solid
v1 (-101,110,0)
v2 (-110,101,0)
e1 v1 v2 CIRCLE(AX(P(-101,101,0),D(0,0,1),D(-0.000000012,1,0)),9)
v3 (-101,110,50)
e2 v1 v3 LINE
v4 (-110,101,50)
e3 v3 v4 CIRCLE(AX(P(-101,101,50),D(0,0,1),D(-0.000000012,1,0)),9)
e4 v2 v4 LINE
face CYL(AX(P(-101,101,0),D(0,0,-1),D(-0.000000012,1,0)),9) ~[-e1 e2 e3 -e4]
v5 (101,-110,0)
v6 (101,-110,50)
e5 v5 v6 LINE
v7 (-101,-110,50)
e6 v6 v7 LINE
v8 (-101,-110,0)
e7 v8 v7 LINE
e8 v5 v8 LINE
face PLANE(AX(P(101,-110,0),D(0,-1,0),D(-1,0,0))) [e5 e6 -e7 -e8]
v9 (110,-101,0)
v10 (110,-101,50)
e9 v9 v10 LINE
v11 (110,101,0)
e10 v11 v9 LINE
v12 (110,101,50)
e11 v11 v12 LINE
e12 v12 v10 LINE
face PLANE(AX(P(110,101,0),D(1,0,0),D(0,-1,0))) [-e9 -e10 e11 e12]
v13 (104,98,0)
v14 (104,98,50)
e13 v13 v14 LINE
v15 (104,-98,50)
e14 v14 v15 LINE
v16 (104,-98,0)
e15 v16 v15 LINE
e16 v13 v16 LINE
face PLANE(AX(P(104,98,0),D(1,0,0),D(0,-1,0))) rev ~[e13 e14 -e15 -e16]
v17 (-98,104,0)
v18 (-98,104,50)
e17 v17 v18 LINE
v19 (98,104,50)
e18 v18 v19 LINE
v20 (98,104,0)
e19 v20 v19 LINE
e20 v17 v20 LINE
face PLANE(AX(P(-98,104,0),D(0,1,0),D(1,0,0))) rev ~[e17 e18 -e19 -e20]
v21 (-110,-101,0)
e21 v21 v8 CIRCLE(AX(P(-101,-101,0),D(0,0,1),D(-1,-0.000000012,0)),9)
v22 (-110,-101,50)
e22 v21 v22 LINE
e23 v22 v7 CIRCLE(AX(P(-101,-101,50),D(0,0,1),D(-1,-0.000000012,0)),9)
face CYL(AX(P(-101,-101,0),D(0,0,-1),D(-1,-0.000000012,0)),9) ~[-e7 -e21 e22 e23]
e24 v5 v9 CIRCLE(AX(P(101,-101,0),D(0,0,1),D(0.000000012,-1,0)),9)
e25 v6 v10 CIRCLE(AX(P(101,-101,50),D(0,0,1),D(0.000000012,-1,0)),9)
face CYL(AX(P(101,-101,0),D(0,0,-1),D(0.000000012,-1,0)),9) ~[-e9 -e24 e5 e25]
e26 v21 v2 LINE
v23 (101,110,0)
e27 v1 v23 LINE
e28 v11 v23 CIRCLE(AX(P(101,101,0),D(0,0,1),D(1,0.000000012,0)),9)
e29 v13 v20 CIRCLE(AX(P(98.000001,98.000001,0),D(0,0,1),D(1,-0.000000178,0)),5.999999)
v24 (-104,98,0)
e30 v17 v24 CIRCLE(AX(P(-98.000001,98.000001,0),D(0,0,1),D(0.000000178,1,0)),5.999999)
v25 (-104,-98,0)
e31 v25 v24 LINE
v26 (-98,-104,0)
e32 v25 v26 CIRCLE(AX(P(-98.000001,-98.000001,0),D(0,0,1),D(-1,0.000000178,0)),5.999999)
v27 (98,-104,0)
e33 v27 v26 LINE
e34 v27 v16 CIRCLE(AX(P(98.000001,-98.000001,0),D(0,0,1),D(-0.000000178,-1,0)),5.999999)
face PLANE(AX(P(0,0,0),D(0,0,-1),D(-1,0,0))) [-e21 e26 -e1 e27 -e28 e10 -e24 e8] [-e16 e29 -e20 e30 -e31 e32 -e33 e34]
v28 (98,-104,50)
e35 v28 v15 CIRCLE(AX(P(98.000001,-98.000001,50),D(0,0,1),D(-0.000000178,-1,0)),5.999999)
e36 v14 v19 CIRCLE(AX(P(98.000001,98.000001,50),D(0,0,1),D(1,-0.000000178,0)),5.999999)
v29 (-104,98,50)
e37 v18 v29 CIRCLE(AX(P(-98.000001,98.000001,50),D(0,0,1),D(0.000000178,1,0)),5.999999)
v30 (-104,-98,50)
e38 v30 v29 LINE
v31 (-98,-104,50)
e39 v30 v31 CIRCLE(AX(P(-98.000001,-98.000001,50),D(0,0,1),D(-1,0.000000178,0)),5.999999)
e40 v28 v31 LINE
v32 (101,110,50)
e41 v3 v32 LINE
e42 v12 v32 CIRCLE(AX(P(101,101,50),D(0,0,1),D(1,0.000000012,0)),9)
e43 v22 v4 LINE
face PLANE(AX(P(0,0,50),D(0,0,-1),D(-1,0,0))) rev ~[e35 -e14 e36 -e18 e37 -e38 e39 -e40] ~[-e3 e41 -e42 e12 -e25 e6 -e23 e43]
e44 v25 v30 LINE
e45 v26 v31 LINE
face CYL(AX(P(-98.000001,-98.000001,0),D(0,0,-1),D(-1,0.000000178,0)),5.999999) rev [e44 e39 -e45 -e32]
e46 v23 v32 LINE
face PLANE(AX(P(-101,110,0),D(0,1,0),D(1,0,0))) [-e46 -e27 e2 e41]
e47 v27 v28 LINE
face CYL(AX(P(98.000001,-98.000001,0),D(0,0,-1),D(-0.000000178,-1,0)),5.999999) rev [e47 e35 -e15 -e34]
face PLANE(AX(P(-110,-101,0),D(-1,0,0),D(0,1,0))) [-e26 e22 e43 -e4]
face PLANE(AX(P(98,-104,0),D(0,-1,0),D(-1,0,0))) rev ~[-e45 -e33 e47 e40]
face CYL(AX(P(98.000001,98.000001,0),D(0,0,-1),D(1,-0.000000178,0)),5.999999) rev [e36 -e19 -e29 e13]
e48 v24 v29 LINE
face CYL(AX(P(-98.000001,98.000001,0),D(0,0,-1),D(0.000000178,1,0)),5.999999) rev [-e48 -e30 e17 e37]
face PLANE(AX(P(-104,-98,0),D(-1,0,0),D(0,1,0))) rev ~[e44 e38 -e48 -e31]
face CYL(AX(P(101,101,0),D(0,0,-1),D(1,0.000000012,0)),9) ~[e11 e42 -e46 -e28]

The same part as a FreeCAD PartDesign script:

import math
import FreeCAD as App
import Part
import Sketcher
from FreeCAD import Vector

doc = App.newDocument("Part")
body = doc.addObject("PartDesign::Body", "Body")

# Sketch on XY plane
sketch1 = body.newObject("Sketcher::SketchObject", "Sketch")
sketch1.AttachmentSupport = (doc.getObject("XY_Plane"), [""])
sketch1.MapMode = "FlatFace"
sketch1.addGeometry([
    Part.LineSegment(Vector(101, 110, 0), Vector(-101, 110, 0)),  # 0
    Part.ArcOfCircle(Part.Circle(Vector(-101, 101, 0), Vector(0, 0, 1), 9), math.radians(90), math.radians(180)),  # 1
    Part.LineSegment(Vector(-110, 101, 0), Vector(-110, -101, 0)),  # 2
    Part.ArcOfCircle(Part.Circle(Vector(-101, -101, 0), Vector(0, 0, 1), 9), math.radians(-180), math.radians(-90)),  # 3
    Part.LineSegment(Vector(-101, -110, 0), Vector(101, -110, 0)),  # 4
    Part.ArcOfCircle(Part.Circle(Vector(101, -101, 0), Vector(0, 0, 1), 9), math.radians(-90), math.radians(0)),  # 5
    Part.LineSegment(Vector(110, -101, 0), Vector(110, 101, 0)),  # 6
    Part.ArcOfCircle(Part.Circle(Vector(101, 101, 0), Vector(0, 0, 1), 9), math.radians(0), math.radians(90)),  # 7
    Part.LineSegment(Vector(-98, 104, 0), Vector(98, 104, 0)),  # 8
    Part.ArcOfCircle(Part.Circle(Vector(98, 98, 0), Vector(0, 0, 1), 6), math.radians(0), math.radians(90)),  # 9
    Part.LineSegment(Vector(104, 98, 0), Vector(104, -98, 0)),  # 10
    Part.ArcOfCircle(Part.Circle(Vector(98, -98, 0), Vector(0, 0, 1), 6), math.radians(-90), math.radians(0)),  # 11
    Part.LineSegment(Vector(98, -104, 0), Vector(-98, -104, 0)),  # 12
    Part.ArcOfCircle(Part.Circle(Vector(-98, -98, 0), Vector(0, 0, 1), 6), math.radians(180), math.radians(270)),  # 13
    Part.LineSegment(Vector(-104, -98, 0), Vector(-104, 98, 0)),  # 14
    Part.ArcOfCircle(Part.Circle(Vector(-98, 98, 0), Vector(0, 0, 1), 6), math.radians(90), math.radians(180)),  # 15
], False)
sketch1.addConstraint([
    Sketcher.Constraint("Tangent", 0, 2, 1, 1),
    Sketcher.Constraint("Tangent", 1, 2, 2, 1),
    Sketcher.Constraint("Tangent", 2, 2, 3, 1),
    Sketcher.Constraint("Tangent", 3, 2, 4, 1),
    Sketcher.Constraint("Tangent", 4, 2, 5, 1),
    Sketcher.Constraint("Tangent", 5, 2, 6, 1),
    Sketcher.Constraint("Tangent", 6, 2, 7, 1),
    Sketcher.Constraint("Tangent", 7, 2, 0, 1),
    Sketcher.Constraint("Tangent", 8, 2, 9, 2),
    Sketcher.Constraint("Tangent", 9, 1, 10, 1),
    Sketcher.Constraint("Tangent", 10, 2, 11, 2),
    Sketcher.Constraint("Tangent", 11, 1, 12, 1),
    Sketcher.Constraint("Tangent", 12, 2, 13, 2),
    Sketcher.Constraint("Tangent", 13, 1, 14, 1),
    Sketcher.Constraint("Tangent", 14, 2, 15, 2),
    Sketcher.Constraint("Tangent", 15, 1, 8, 1),
    Sketcher.Constraint("Horizontal", 0),
    Sketcher.Constraint("Vertical", 2),
    Sketcher.Constraint("Horizontal", 4),
    Sketcher.Constraint("Vertical", 6),
    Sketcher.Constraint("Horizontal", 8),
    Sketcher.Constraint("Vertical", 10),
    Sketcher.Constraint("Horizontal", 12),
    Sketcher.Constraint("Vertical", 14),
    Sketcher.Constraint("Equal", 1, 3),
    Sketcher.Constraint("Equal", 3, 5),
    Sketcher.Constraint("Equal", 5, 7),
    Sketcher.Constraint("Equal", 9, 11),
    Sketcher.Constraint("Equal", 11, 13),
    Sketcher.Constraint("Equal", 13, 15),
    Sketcher.Constraint("Symmetric", 1, 3, 5, 3, -1, 1),
    Sketcher.Constraint("Symmetric", 9, 3, 13, 3, -1, 1),
    Sketcher.Constraint("Equal", 4, 2),
    Sketcher.Constraint("Equal", 12, 10),
    Sketcher.Constraint("Radius", 1, 9.0),
    Sketcher.Constraint("Radius", 9, 5.999999),
    Sketcher.Constraint("DistanceX", 0, 2, 0, 1, 202.0),
    Sketcher.Constraint("DistanceX", 8, 1, 8, 2, 196.0),
])
pad1 = body.newObject("PartDesign::Pad", "Pad")
pad1.Profile = sketch1
pad1.Length = 50

doc.recompute()
